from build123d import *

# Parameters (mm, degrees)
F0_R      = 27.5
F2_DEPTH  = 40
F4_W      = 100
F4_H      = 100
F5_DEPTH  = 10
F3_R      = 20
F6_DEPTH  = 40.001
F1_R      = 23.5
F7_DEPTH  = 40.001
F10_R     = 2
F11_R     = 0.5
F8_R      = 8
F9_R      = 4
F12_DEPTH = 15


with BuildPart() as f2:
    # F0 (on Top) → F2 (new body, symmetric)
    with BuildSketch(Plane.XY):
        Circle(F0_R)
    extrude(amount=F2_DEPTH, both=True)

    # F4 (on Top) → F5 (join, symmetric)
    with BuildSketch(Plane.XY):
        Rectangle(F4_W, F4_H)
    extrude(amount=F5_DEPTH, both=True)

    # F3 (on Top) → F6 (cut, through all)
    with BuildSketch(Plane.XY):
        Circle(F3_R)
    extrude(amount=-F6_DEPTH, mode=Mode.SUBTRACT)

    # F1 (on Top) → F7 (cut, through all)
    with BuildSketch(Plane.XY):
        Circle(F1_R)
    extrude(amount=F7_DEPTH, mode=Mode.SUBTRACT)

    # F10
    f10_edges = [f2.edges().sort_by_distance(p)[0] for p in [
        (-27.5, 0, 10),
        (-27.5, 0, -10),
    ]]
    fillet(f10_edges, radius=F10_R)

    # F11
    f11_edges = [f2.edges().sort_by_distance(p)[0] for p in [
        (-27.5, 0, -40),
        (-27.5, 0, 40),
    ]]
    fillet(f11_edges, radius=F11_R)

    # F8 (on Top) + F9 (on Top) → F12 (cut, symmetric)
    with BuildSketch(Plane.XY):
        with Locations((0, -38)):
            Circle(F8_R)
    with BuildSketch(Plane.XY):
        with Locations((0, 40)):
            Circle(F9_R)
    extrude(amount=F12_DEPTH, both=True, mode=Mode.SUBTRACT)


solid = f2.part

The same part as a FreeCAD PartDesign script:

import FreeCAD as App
import Part
import Sketcher
from FreeCAD import Vector


def edges_at(feature, points):
    """Names of the edges that pass closest to the given points."""
    edges = feature.Shape.Edges
    near = lambda p: min(range(len(edges)), key=lambda i: edges[i].distToShape(Part.Vertex(*p))[0])
    return sorted({f"Edge{near(p) + 1}" for p in points})

doc = App.newDocument("Part")
body = doc.addObject("PartDesign::Body", "Body")

# Sketch on XY plane
sketch1 = doc.addObject("Sketcher::SketchObject", "Sketch")
body.addObject(sketch1)
sketch1.AttachmentSupport = (doc.XY_Plane, [""])
sketch1.MapMode = "FlatFace"
sketch1.addGeometry(Part.Circle(Vector(0, 0, 0), Vector(0, 0, 1), 28), False)
sketch1.addConstraint([
    Sketcher.Constraint("Coincident", 0, 3, -1, 1),
    Sketcher.Constraint("Diameter", 0, 55.0),
])
pad1 = doc.addObject("PartDesign::Pad", "Pad")
body.addObject(pad1)
pad1.Profile = sketch1
pad1.Length = 80
pad1.Midplane = True

# Sketch on XY plane
sketch2 = doc.addObject("Sketcher::SketchObject", "Sketch001")
body.addObject(sketch2)
sketch2.AttachmentSupport = (doc.XY_Plane, [""])
sketch2.MapMode = "FlatFace"
sketch2.addGeometry([
    Part.LineSegment(Vector(-50, 50, 0), Vector(-50, -50, 0)),
    Part.LineSegment(Vector(-50, -50, 0), Vector(50, -50, 0)),
    Part.LineSegment(Vector(50, -50, 0), Vector(50, 50, 0)),
    Part.LineSegment(Vector(50, 50, 0), Vector(-50, 50, 0)),
], False)
sketch2.addConstraint([
    Sketcher.Constraint("Coincident", 0, 2, 1, 1),
    Sketcher.Constraint("Coincident", 1, 2, 2, 1),
    Sketcher.Constraint("Coincident", 2, 2, 3, 1),
    Sketcher.Constraint("Coincident", 3, 2, 0, 1),
    Sketcher.Constraint("Vertical", 0),
    Sketcher.Constraint("Horizontal", 1),
    Sketcher.Constraint("Vertical", 2),
    Sketcher.Constraint("Horizontal", 3),
    Sketcher.Constraint("Symmetric", 0, 2, 2, 2, -1, 1),
    Sketcher.Constraint("Equal", 3, 0),
    Sketcher.Constraint("DistanceX", 1, 1, 1, 2, 100.0),
])
pad2 = doc.addObject("PartDesign::Pad", "Pad001")
body.addObject(pad2)
pad2.Profile = sketch2
pad2.Length = 20
pad2.Midplane = True

# Sketch on XY plane
sketch3 = doc.addObject("Sketcher::SketchObject", "Sketch002")
body.addObject(sketch3)
sketch3.AttachmentSupport = (doc.XY_Plane, [""])
sketch3.MapMode = "FlatFace"
sketch3.addGeometry(Part.Circle(Vector(0, 0, 0), Vector(0, 0, 1), 20), False)
sketch3.addConstraint([
    Sketcher.Constraint("Coincident", 0, 3, -1, 1),
    Sketcher.Constraint("Diameter", 0, 40.0),
])
pocket1 = doc.addObject("PartDesign::Pocket", "Pocket")
body.addObject(pocket1)
pocket1.Profile = sketch3
pocket1.Type = "ThroughAll"

# Sketch on XY plane
sketch4 = doc.addObject("Sketcher::SketchObject", "Sketch003")
body.addObject(sketch4)
sketch4.AttachmentSupport = (doc.XY_Plane, [""])
sketch4.MapMode = "FlatFace"
sketch4.addGeometry(Part.Circle(Vector(0, 0, 0), Vector(0, 0, 1), 24), False)
sketch4.addConstraint([
    Sketcher.Constraint("Coincident", 0, 3, -1, 1),
    Sketcher.Constraint("Diameter", 0, 47.0),
])
pocket2 = doc.addObject("PartDesign::Pocket", "Pocket001")
body.addObject(pocket2)
pocket2.Profile = sketch4
pocket2.Type = "ThroughAll"
pocket2.Reversed = True
doc.recompute()

fillet = doc.addObject("PartDesign::Fillet", "Fillet")
body.addObject(fillet)
fillet.Base = (pocket2, edges_at(pocket2, [(-27.5, 0, 10), (-27.5, 0, -10)]))
fillet.Radius = 2
doc.recompute()

fillet2 = doc.addObject("PartDesign::Fillet", "Fillet001")
body.addObject(fillet2)
fillet2.Base = (fillet, edges_at(fillet, [(-27.5, 0, -40), (-27.5, 0, 40)]))
fillet2.Radius = 0.5

# Sketch on XY plane
sketch5 = doc.addObject("Sketcher::SketchObject", "Sketch004")
body.addObject(sketch5)
sketch5.AttachmentSupport = (doc.XY_Plane, [""])
sketch5.MapMode = "FlatFace"
sketch5.addGeometry([
    Part.Circle(Vector(0, -38, 0), Vector(0, 0, 1), 8),
    Part.Circle(Vector(0, 40, 0), Vector(0, 0, 1), 4),
], False)
sketch5.addConstraint([
    Sketcher.Constraint("PointOnObject", 0, 3, -2),
    Sketcher.Constraint("PointOnObject", 1, 3, -2),
    Sketcher.Constraint("Diameter", 0, 16.0),
    Sketcher.Constraint("Diameter", 1, 8.0),
    Sketcher.Constraint("DistanceY", 0, 3, -1, 1, 38.0),
    Sketcher.Constraint("DistanceY", -1, 1, 1, 3, 40.0),
])
pocket3 = doc.addObject("PartDesign::Pocket", "Pocket002")
body.addObject(pocket3)
pocket3.Profile = sketch5
pocket3.Length = 30
pocket3.Midplane = True

doc.recompute()
